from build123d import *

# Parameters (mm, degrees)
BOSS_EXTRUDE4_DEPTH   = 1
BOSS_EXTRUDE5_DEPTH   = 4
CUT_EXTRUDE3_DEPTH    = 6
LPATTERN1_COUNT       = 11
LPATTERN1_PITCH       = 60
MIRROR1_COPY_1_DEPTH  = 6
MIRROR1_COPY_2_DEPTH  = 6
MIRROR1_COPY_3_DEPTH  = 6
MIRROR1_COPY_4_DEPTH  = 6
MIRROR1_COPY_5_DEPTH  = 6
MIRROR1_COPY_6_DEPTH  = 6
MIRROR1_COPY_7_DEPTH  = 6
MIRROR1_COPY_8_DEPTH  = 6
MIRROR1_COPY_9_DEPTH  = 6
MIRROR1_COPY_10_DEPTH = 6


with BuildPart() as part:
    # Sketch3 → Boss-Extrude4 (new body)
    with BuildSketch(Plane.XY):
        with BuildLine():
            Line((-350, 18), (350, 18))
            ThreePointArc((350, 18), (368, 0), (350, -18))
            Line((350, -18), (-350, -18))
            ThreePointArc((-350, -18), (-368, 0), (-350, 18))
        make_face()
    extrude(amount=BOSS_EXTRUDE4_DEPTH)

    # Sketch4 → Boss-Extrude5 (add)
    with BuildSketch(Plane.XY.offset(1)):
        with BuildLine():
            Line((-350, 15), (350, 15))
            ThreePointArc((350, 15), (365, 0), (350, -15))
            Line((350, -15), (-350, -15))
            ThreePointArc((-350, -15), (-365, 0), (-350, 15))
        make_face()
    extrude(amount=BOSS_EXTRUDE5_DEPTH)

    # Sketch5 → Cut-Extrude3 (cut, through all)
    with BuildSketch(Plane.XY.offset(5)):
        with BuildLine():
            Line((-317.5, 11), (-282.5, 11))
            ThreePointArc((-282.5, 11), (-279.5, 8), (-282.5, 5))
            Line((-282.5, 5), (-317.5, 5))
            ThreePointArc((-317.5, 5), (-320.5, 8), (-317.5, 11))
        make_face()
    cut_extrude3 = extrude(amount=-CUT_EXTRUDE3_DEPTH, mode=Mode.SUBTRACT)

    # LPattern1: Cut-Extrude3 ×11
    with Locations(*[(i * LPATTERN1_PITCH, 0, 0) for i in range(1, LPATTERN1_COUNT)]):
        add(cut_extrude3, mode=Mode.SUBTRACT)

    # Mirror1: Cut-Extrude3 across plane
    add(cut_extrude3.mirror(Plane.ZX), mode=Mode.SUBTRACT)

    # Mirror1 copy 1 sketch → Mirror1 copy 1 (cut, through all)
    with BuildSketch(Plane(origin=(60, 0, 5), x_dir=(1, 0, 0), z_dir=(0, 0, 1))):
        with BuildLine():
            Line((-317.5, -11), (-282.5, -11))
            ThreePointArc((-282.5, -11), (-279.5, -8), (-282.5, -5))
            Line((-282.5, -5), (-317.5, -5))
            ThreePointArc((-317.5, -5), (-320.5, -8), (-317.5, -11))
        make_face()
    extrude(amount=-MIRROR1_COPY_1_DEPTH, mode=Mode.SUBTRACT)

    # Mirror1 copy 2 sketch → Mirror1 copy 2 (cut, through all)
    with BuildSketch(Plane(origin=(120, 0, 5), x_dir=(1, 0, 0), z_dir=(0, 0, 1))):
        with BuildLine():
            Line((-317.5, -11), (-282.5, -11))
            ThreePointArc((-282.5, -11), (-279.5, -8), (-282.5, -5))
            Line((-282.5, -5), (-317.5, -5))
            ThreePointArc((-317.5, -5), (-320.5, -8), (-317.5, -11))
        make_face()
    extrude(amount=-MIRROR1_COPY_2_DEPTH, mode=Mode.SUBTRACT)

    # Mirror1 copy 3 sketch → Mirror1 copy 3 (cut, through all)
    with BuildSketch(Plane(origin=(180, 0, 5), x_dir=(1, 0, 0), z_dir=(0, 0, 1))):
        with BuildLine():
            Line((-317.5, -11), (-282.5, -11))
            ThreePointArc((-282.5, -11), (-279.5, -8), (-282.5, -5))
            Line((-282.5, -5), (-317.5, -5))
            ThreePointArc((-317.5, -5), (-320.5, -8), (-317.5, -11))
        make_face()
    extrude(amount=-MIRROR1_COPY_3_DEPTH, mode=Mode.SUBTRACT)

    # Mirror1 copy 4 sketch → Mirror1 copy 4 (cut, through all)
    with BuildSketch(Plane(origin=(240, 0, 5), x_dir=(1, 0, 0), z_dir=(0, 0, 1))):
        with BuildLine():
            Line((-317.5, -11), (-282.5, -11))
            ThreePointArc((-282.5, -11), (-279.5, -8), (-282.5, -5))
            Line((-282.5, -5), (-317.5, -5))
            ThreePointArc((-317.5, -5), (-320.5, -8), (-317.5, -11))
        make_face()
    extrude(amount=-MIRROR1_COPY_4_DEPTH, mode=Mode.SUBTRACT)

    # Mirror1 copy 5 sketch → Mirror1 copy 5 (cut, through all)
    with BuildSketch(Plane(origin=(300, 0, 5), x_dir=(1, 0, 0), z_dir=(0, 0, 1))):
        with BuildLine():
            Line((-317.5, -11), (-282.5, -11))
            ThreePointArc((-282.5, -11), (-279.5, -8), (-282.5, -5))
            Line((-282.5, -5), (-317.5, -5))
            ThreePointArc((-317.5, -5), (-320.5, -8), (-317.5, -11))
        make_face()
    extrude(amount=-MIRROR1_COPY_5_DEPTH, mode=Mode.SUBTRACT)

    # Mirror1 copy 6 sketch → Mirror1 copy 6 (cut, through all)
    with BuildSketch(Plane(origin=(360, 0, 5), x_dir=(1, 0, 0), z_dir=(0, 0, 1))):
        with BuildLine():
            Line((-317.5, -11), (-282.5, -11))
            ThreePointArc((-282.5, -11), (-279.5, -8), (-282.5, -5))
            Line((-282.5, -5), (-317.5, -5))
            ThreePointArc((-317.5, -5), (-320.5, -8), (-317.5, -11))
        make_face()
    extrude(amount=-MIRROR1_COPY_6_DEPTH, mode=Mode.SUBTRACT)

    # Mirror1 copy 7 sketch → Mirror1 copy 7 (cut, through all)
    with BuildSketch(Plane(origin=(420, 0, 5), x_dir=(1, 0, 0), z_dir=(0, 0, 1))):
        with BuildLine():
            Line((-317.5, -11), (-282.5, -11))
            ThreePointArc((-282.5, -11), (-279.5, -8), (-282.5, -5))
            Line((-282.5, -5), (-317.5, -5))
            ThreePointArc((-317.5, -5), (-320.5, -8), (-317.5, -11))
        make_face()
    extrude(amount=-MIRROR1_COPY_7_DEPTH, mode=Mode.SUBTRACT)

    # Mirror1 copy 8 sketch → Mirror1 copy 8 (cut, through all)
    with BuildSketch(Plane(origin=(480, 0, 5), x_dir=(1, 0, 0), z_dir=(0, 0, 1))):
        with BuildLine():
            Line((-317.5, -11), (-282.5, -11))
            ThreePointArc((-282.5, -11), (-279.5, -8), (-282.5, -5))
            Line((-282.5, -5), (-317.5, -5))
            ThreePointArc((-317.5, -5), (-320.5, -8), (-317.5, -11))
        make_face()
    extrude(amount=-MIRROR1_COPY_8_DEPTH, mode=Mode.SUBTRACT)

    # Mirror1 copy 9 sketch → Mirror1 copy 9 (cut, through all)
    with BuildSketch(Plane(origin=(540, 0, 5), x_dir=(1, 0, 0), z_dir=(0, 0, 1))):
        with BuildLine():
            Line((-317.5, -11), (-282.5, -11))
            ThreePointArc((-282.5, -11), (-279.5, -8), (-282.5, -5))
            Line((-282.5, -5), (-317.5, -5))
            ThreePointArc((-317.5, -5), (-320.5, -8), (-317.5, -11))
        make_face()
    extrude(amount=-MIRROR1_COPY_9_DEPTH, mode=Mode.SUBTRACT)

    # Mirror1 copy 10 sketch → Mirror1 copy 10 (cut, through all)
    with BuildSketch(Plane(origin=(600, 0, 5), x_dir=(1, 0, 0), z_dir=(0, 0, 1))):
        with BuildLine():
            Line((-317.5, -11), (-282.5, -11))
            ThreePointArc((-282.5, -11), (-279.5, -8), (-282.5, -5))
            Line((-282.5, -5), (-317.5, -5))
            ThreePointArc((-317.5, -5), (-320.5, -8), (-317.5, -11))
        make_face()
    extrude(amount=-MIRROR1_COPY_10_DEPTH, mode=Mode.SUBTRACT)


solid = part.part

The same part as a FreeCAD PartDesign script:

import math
import FreeCAD as App
import Part
import Sketcher
from FreeCAD import Vector

doc = App.newDocument("Part")
params = doc.addObject("Spreadsheet::Sheet", "Params")
for row, (alias, value) in enumerate([
    ("sketch1_radius", "18 mm"),
    ("sketch1_width", "700 mm"),
    ("pad1_length", "1 mm"),
    ("sketch2_radius", "15 mm"),
    ("sketch2_width", "700 mm"),
    ("pad2_length", "4 mm"),
    ("sketch3_radius", "3 mm"),
    ("sketch3_width", "35 mm"),
    ("linearpattern_pitch", "60 mm"),
    ("sketch4_radius", "3 mm"),
    ("sketch4_width", "35 mm"),
    ("sketch5_radius", "3 mm"),
    ("sketch5_width", "35 mm"),
    ("sketch6_radius", "3 mm"),
    ("sketch6_width", "35 mm"),
    ("sketch7_radius", "3 mm"),
    ("sketch7_width", "35 mm"),
    ("sketch8_radius", "3 mm"),
    ("sketch8_width", "35 mm"),
    ("sketch9_radius", "3 mm"),
    ("sketch9_width", "35 mm"),
    ("sketch10_radius", "3 mm"),
    ("sketch10_width", "35 mm"),
    ("sketch11_radius", "3 mm"),
    ("sketch11_width", "35 mm"),
    ("sketch12_radius", "3 mm"),
    ("sketch12_width", "35 mm"),
    ("sketch13_radius", "3 mm"),
    ("sketch13_width", "35 mm"),
], start=1):
    params.set(f"A{row}", alias)
    params.set(f"B{row}", "=" + value)
    params.setAlias(f"B{row}", alias)

body = doc.addObject("PartDesign::Body", "Body")

sketch1 = body.newObject("Sketcher::SketchObject", "Sketch")
sketch1.AttachmentSupport = (doc.getObject("XY_Plane"), [""])
sketch1.MapMode = "FlatFace"
sketch1.addGeometry(Part.LineSegment(Vector(350, 18, 0), Vector(-350, 18, 0)), False)
sketch1.addGeometry(Part.ArcOfCircle(Part.Circle(Vector(-350, 0, 0), Vector(0, 0, 1), 18), math.radians(90), math.radians(270)), False)
sketch1.addGeometry(Part.LineSegment(Vector(-350, -18, 0), Vector(350, -18, 0)), False)
sketch1.addGeometry(Part.ArcOfCircle(Part.Circle(Vector(350, 0, 0), Vector(0, 0, 1), 18), math.radians(-90), math.radians(90)), False)
sketch1.addConstraint(Sketcher.Constraint("Tangent", 0, 2, 1, 1))
sketch1.addConstraint(Sketcher.Constraint("Tangent", 1, 2, 2, 1))
sketch1.addConstraint(Sketcher.Constraint("Tangent", 2, 2, 3, 1))
sketch1.addConstraint(Sketcher.Constraint("Tangent", 3, 2, 0, 1))
sketch1.addConstraint(Sketcher.Constraint("Horizontal", 0))
sketch1.addConstraint(Sketcher.Constraint("Horizontal", 2))
sketch1.addConstraint(Sketcher.Constraint("Symmetric", 1, 3, 3, 3, -1, 1))
sketch1.addConstraint(Sketcher.Constraint("Radius", 1, 18.0))
sketch1.addConstraint(Sketcher.Constraint("DistanceX", 0, 2, 0, 1, 700.0))
sketch1.setExpression("Constraints[7]", "Params.sketch1_radius")
sketch1.setExpression("Constraints[8]", "Params.sketch1_width")
pad1 = body.newObject("PartDesign::Pad", "Pad")
pad1.Profile = sketch1
pad1.setExpression("Length", "Params.pad1_length")

sketch2 = body.newObject("Sketcher::SketchObject", "Sketch001")
sketch2.AttachmentSupport = (doc.getObject("XY_Plane"), [""])
sketch2.MapMode = "FlatFace"
sketch2.AttachmentOffset = App.Placement(Vector(0, 0, 1), App.Rotation())
sketch2.addGeometry(Part.LineSegment(Vector(350, 15, 0), Vector(-350, 15, 0)), False)
sketch2.addGeometry(Part.ArcOfCircle(Part.Circle(Vector(-350, 0, 0), Vector(0, 0, 1), 15), math.radians(90), math.radians(270)), False)
sketch2.addGeometry(Part.LineSegment(Vector(-350, -15, 0), Vector(350, -15, 0)), False)
sketch2.addGeometry(Part.ArcOfCircle(Part.Circle(Vector(350, 0, 0), Vector(0, 0, 1), 15), math.radians(-90), math.radians(90)), False)
sketch2.addConstraint(Sketcher.Constraint("Tangent", 0, 2, 1, 1))
sketch2.addConstraint(Sketcher.Constraint("Tangent", 1, 2, 2, 1))
sketch2.addConstraint(Sketcher.Constraint("Tangent", 2, 2, 3, 1))
sketch2.addConstraint(Sketcher.Constraint("Tangent", 3, 2, 0, 1))
sketch2.addConstraint(Sketcher.Constraint("Horizontal", 0))
sketch2.addConstraint(Sketcher.Constraint("Horizontal", 2))
sketch2.addConstraint(Sketcher.Constraint("Symmetric", 1, 3, 3, 3, -1, 1))
sketch2.addConstraint(Sketcher.Constraint("Radius", 1, 15.0))
sketch2.addConstraint(Sketcher.Constraint("DistanceX", 0, 2, 0, 1, 700.0))
sketch2.setExpression("Constraints[7]", "Params.sketch2_radius")
sketch2.setExpression("Constraints[8]", "Params.sketch2_width")
pad2 = body.newObject("PartDesign::Pad", "Pad001")
pad2.Profile = sketch2
pad2.setExpression("Length", "Params.pad2_length")

sketch3 = body.newObject("Sketcher::SketchObject", "Sketch002")
sketch3.AttachmentSupport = (doc.getObject("XY_Plane"), [""])
sketch3.MapMode = "FlatFace"
sketch3.AttachmentOffset = App.Placement(Vector(0, 0, 5), App.Rotation())
sketch3.addGeometry(Part.LineSegment(Vector(-282.5, 11, 0), Vector(-317.5, 11, 0)), False)
sketch3.addGeometry(Part.ArcOfCircle(Part.Circle(Vector(-317.5, 8, 0), Vector(0, 0, 1), 3), math.radians(90), math.radians(270)), False)
sketch3.addGeometry(Part.LineSegment(Vector(-317.5, 5, 0), Vector(-282.5, 5, 0)), False)
sketch3.addGeometry(Part.ArcOfCircle(Part.Circle(Vector(-282.5, 8, 0), Vector(0, 0, 1), 3), math.radians(-90), math.radians(90)), False)
sketch3.addConstraint(Sketcher.Constraint("Tangent", 0, 2, 1, 1))
sketch3.addConstraint(Sketcher.Constraint("Tangent", 1, 2, 2, 1))
sketch3.addConstraint(Sketcher.Constraint("Tangent", 2, 2, 3, 1))
sketch3.addConstraint(Sketcher.Constraint("Tangent", 3, 2, 0, 1))
sketch3.addConstraint(Sketcher.Constraint("Horizontal", 0))
sketch3.addConstraint(Sketcher.Constraint("Horizontal", 2))
sketch3.addConstraint(Sketcher.Constraint("Radius", 1, 3.0))
sketch3.addConstraint(Sketcher.Constraint("DistanceX", 0, 2, 0, 1, 35.0))
sketch3.addConstraint(Sketcher.Constraint("DistanceY", -1, 1, 1, 3, 8.0))
sketch3.addConstraint(Sketcher.Constraint("DistanceX", 1, 3, -1, 1, 317.5))
sketch3.setExpression("Constraints[6]", "Params.sketch3_radius")
sketch3.setExpression("Constraints[7]", "Params.sketch3_width")
pocket1 = body.newObject("PartDesign::Pocket", "Pocket")
pocket1.Profile = sketch3
pocket1.Type = "ThroughAll"
doc.recompute()

linearpattern = body.newObject("PartDesign::LinearPattern", "LinearPattern")
linearpattern.Originals = [pocket1]
linearpattern.Direction = (doc.getObject("X_Axis"), [""])
linearpattern.Mode = "offset"
linearpattern.setExpression("Offset", "Params.linearpattern_pitch")
linearpattern.Occurrences = 11
body.Tip = linearpattern
doc.recompute()

mirrored = body.newObject("PartDesign::Mirrored", "Mirrored")
mirrored.Originals = [pocket1]
mirrored.MirrorPlane = (doc.getObject("XZ_Plane"), [""])
body.Tip = mirrored

sketch4 = body.newObject("Sketcher::SketchObject", "Sketch003")
sketch4.AttachmentSupport = (doc.getObject("XY_Plane"), [""])
sketch4.MapMode = "FlatFace"
sketch4.AttachmentOffset = App.Placement(Vector(0, 0, 5), App.Rotation())
sketch4.addGeometry(Part.LineSegment(Vector(-257.5, -11, 0), Vector(-222.5, -11, 0)), False)
sketch4.addGeometry(Part.ArcOfCircle(Part.Circle(Vector(-222.5, -8, 0), Vector(0, 0, 1), 3), math.radians(-90), math.radians(90)), False)
sketch4.addGeometry(Part.LineSegment(Vector(-222.5, -5, 0), Vector(-257.5, -5, 0)), False)
sketch4.addGeometry(Part.ArcOfCircle(Part.Circle(Vector(-257.5, -8, 0), Vector(0, 0, 1), 3), math.radians(90), math.radians(270)), False)
sketch4.addConstraint(Sketcher.Constraint("Tangent", 0, 2, 1, 1))
sketch4.addConstraint(Sketcher.Constraint("Tangent", 1, 2, 2, 1))
sketch4.addConstraint(Sketcher.Constraint("Tangent", 2, 2, 3, 1))
sketch4.addConstraint(Sketcher.Constraint("Tangent", 3, 2, 0, 1))
sketch4.addConstraint(Sketcher.Constraint("Horizontal", 0))
sketch4.addConstraint(Sketcher.Constraint("Horizontal", 2))
sketch4.addConstraint(Sketcher.Constraint("Radius", 1, 3.0))
sketch4.addConstraint(Sketcher.Constraint("DistanceX", 0, 1, 0, 2, 35.0))
sketch4.addConstraint(Sketcher.Constraint("DistanceY", 1, 3, -1, 1, 8.0))
sketch4.addConstraint(Sketcher.Constraint("DistanceX", 1, 3, -1, 1, 222.5))
sketch4.setExpression("Constraints[6]", "Params.sketch4_radius")
sketch4.setExpression("Constraints[7]", "Params.sketch4_width")
pocket2 = body.newObject("PartDesign::Pocket", "Pocket001")
pocket2.Profile = sketch4
pocket2.Type = "ThroughAll"

sketch5 = body.newObject("Sketcher::SketchObject", "Sketch004")
sketch5.AttachmentSupport = (doc.getObject("XY_Plane"), [""])
sketch5.MapMode = "FlatFace"
sketch5.AttachmentOffset = App.Placement(Vector(0, 0, 5), App.Rotation())
sketch5.addGeometry(Part.LineSegment(Vector(-197.5, -11, 0), Vector(-162.5, -11, 0)), False)
sketch5.addGeometry(Part.ArcOfCircle(Part.Circle(Vector(-162.5, -8, 0), Vector(0, 0, 1), 3), math.radians(-90), math.radians(90)), False)
sketch5.addGeometry(Part.LineSegment(Vector(-162.5, -5, 0), Vector(-197.5, -5, 0)), False)
sketch5.addGeometry(Part.ArcOfCircle(Part.Circle(Vector(-197.5, -8, 0), Vector(0, 0, 1), 3), math.radians(90), math.radians(270)), False)
sketch5.addConstraint(Sketcher.Constraint("Tangent", 0, 2, 1, 1))
sketch5.addConstraint(Sketcher.Constraint("Tangent", 1, 2, 2, 1))
sketch5.addConstraint(Sketcher.Constraint("Tangent", 2, 2, 3, 1))
sketch5.addConstraint(Sketcher.Constraint("Tangent", 3, 2, 0, 1))
sketch5.addConstraint(Sketcher.Constraint("Horizontal", 0))
sketch5.addConstraint(Sketcher.Constraint("Horizontal", 2))
sketch5.addConstraint(Sketcher.Constraint("Radius", 1, 3.0))
sketch5.addConstraint(Sketcher.Constraint("DistanceX", 0, 1, 0, 2, 35.0))
sketch5.addConstraint(Sketcher.Constraint("DistanceY", 1, 3, -1, 1, 8.0))
sketch5.addConstraint(Sketcher.Constraint("DistanceX", 1, 3, -1, 1, 162.5))
sketch5.setExpression("Constraints[6]", "Params.sketch5_radius")
sketch5.setExpression("Constraints[7]", "Params.sketch5_width")
pocket3 = body.newObject("PartDesign::Pocket", "Pocket002")
pocket3.Profile = sketch5
pocket3.Type = "ThroughAll"

sketch6 = body.newObject("Sketcher::SketchObject", "Sketch005")
sketch6.AttachmentSupport = (doc.getObject("XY_Plane"), [""])
sketch6.MapMode = "FlatFace"
sketch6.AttachmentOffset = App.Placement(Vector(0, 0, 5), App.Rotation())
sketch6.addGeometry(Part.LineSegment(Vector(-137.5, -11, 0), Vector(-102.5, -11, 0)), False)
sketch6.addGeometry(Part.ArcOfCircle(Part.Circle(Vector(-102.5, -8, 0), Vector(0, 0, 1), 3), math.radians(-90), math.radians(90)), False)
sketch6.addGeometry(Part.LineSegment(Vector(-102.5, -5, 0), Vector(-137.5, -5, 0)), False)
sketch6.addGeometry(Part.ArcOfCircle(Part.Circle(Vector(-137.5, -8, 0), Vector(0, 0, 1), 3), math.radians(90), math.radians(270)), False)
sketch6.addConstraint(Sketcher.Constraint("Tangent", 0, 2, 1, 1))
sketch6.addConstraint(Sketcher.Constraint("Tangent", 1, 2, 2, 1))
sketch6.addConstraint(Sketcher.Constraint("Tangent", 2, 2, 3, 1))
sketch6.addConstraint(Sketcher.Constraint("Tangent", 3, 2, 0, 1))
sketch6.addConstraint(Sketcher.Constraint("Horizontal", 0))
sketch6.addConstraint(Sketcher.Constraint("Horizontal", 2))
sketch6.addConstraint(Sketcher.Constraint("Radius", 1, 3.0))
sketch6.addConstraint(Sketcher.Constraint("DistanceX", 0, 1, 0, 2, 35.0))
sketch6.addConstraint(Sketcher.Constraint("DistanceY", 1, 3, -1, 1, 8.0))
sketch6.addConstraint(Sketcher.Constraint("DistanceX", 1, 3, -1, 1, 102.5))
sketch6.setExpression("Constraints[6]", "Params.sketch6_radius")
sketch6.setExpression("Constraints[7]", "Params.sketch6_width")
pocket4 = body.newObject("PartDesign::Pocket", "Pocket003")
pocket4.Profile = sketch6
pocket4.Type = "ThroughAll"

sketch7 = body.newObject("Sketcher::SketchObject", "Sketch006")
sketch7.AttachmentSupport = (doc.getObject("XY_Plane"), [""])
sketch7.MapMode = "FlatFace"
sketch7.AttachmentOffset = App.Placement(Vector(0, 0, 5), App.Rotation())
sketch7.addGeometry(Part.LineSegment(Vector(-77.5, -11, 0), Vector(-42.5, -11, 0)), False)
sketch7.addGeometry(Part.ArcOfCircle(Part.Circle(Vector(-42.5, -8, 0), Vector(0, 0, 1), 3), math.radians(-90), math.radians(90)), False)
sketch7.addGeometry(Part.LineSegment(Vector(-42.5, -5, 0), Vector(-77.5, -5, 0)), False)
sketch7.addGeometry(Part.ArcOfCircle(Part.Circle(Vector(-77.5, -8, 0), Vector(0, 0, 1), 3), math.radians(90), math.radians(270)), False)
sketch7.addConstraint(Sketcher.Constraint("Tangent", 0, 2, 1, 1))
sketch7.addConstraint(Sketcher.Constraint("Tangent", 1, 2, 2, 1))
sketch7.addConstraint(Sketcher.Constraint("Tangent", 2, 2, 3, 1))
sketch7.addConstraint(Sketcher.Constraint("Tangent", 3, 2, 0, 1))
sketch7.addConstraint(Sketcher.Constraint("Horizontal", 0))
sketch7.addConstraint(Sketcher.Constraint("Horizontal", 2))
sketch7.addConstraint(Sketcher.Constraint("Radius", 1, 3.0))
sketch7.addConstraint(Sketcher.Constraint("DistanceX", 0, 1, 0, 2, 35.0))
sketch7.addConstraint(Sketcher.Constraint("DistanceY", 1, 3, -1, 1, 8.0))
sketch7.addConstraint(Sketcher.Constraint("DistanceX", 1, 3, -1, 1, 42.5))
sketch7.setExpression("Constraints[6]", "Params.sketch7_radius")
sketch7.setExpression("Constraints[7]", "Params.sketch7_width")
pocket5 = body.newObject("PartDesign::Pocket", "Pocket004")
pocket5.Profile = sketch7
pocket5.Type = "ThroughAll"

sketch8 = body.newObject("Sketcher::SketchObject", "Sketch007")
sketch8.AttachmentSupport = (doc.getObject("XY_Plane"), [""])
sketch8.MapMode = "FlatFace"
sketch8.AttachmentOffset = App.Placement(Vector(0, 0, 5), App.Rotation())
sketch8.addGeometry(Part.LineSegment(Vector(-17.5, -11, 0), Vector(17.5, -11, 0)), False)
sketch8.addGeometry(Part.ArcOfCircle(Part.Circle(Vector(17.5, -8, 0), Vector(0, 0, 1), 3), math.radians(-90), math.radians(90)), False)
sketch8.addGeometry(Part.LineSegment(Vector(17.5, -5, 0), Vector(-17.5, -5, 0)), False)
sketch8.addGeometry(Part.ArcOfCircle(Part.Circle(Vector(-17.5, -8, 0), Vector(0, 0, 1), 3), math.radians(90), math.radians(270)), False)
sketch8.addConstraint(Sketcher.Constraint("Tangent", 0, 2, 1, 1))
sketch8.addConstraint(Sketcher.Constraint("Tangent", 1, 2, 2, 1))
sketch8.addConstraint(Sketcher.Constraint("Tangent", 2, 2, 3, 1))
sketch8.addConstraint(Sketcher.Constraint("Tangent", 3, 2, 0, 1))
sketch8.addConstraint(Sketcher.Constraint("Horizontal", 0))
sketch8.addConstraint(Sketcher.Constraint("Horizontal", 2))
sketch8.addConstraint(Sketcher.Constraint("Radius", 1, 3.0))
sketch8.addConstraint(Sketcher.Constraint("DistanceX", 0, 1, 0, 2, 35.0))
sketch8.addConstraint(Sketcher.Constraint("DistanceY", 1, 3, -1, 1, 8.0))
sketch8.addConstraint(Sketcher.Constraint("DistanceX", -1, 1, 1, 3, 17.5))
sketch8.setExpression("Constraints[6]", "Params.sketch8_radius")
sketch8.setExpression("Constraints[7]", "Params.sketch8_width")
pocket6 = body.newObject("PartDesign::Pocket", "Pocket005")
pocket6.Profile = sketch8
pocket6.Type = "ThroughAll"

sketch9 = body.newObject("Sketcher::SketchObject", "Sketch008")
sketch9.AttachmentSupport = (doc.getObject("XY_Plane"), [""])
sketch9.MapMode = "FlatFace"
sketch9.AttachmentOffset = App.Placement(Vector(0, 0, 5), App.Rotation())
sketch9.addGeometry(Part.LineSegment(Vector(42.5, -11, 0), Vector(77.5, -11, 0)), False)
sketch9.addGeometry(Part.ArcOfCircle(Part.Circle(Vector(77.5, -8, 0), Vector(0, 0, 1), 3), math.radians(-90), math.radians(90)), False)
sketch9.addGeometry(Part.LineSegment(Vector(77.5, -5, 0), Vector(42.5, -5, 0)), False)
sketch9.addGeometry(Part.ArcOfCircle(Part.Circle(Vector(42.5, -8, 0), Vector(0, 0, 1), 3), math.radians(90), math.radians(270)), False)
sketch9.addConstraint(Sketcher.Constraint("Tangent", 0, 2, 1, 1))
sketch9.addConstraint(Sketcher.Constraint("Tangent", 1, 2, 2, 1))
sketch9.addConstraint(Sketcher.Constraint("Tangent", 2, 2, 3, 1))
sketch9.addConstraint(Sketcher.Constraint("Tangent", 3, 2, 0, 1))
sketch9.addConstraint(Sketcher.Constraint("Horizontal", 0))
sketch9.addConstraint(Sketcher.Constraint("Horizontal", 2))
sketch9.addConstraint(Sketcher.Constraint("Radius", 1, 3.0))
sketch9.addConstraint(Sketcher.Constraint("DistanceX", 0, 1, 0, 2, 35.0))
sketch9.addConstraint(Sketcher.Constraint("DistanceY", 1, 3, -1, 1, 8.0))
sketch9.addConstraint(Sketcher.Constraint("DistanceX", -1, 1, 1, 3, 77.5))
sketch9.setExpression("Constraints[6]", "Params.sketch9_radius")
sketch9.setExpression("Constraints[7]", "Params.sketch9_width")
pocket7 = body.newObject("PartDesign::Pocket", "Pocket006")
pocket7.Profile = sketch9
pocket7.Type = "ThroughAll"

sketch10 = body.newObject("Sketcher::SketchObject", "Sketch009")
sketch10.AttachmentSupport = (doc.getObject("XY_Plane"), [""])
sketch10.MapMode = "FlatFace"
sketch10.AttachmentOffset = App.Placement(Vector(0, 0, 5), App.Rotation())
sketch10.addGeometry(Part.LineSegment(Vector(102.5, -11, 0), Vector(137.5, -11, 0)), False)
sketch10.addGeometry(Part.ArcOfCircle(Part.Circle(Vector(137.5, -8, 0), Vector(0, 0, 1), 3), math.radians(-90), math.radians(90)), False)
sketch10.addGeometry(Part.LineSegment(Vector(137.5, -5, 0), Vector(102.5, -5, 0)), False)
sketch10.addGeometry(Part.ArcOfCircle(Part.Circle(Vector(102.5, -8, 0), Vector(0, 0, 1), 3), math.radians(90), math.radians(270)), False)
sketch10.addConstraint(Sketcher.Constraint("Tangent", 0, 2, 1, 1))
sketch10.addConstraint(Sketcher.Constraint("Tangent", 1, 2, 2, 1))
sketch10.addConstraint(Sketcher.Constraint("Tangent", 2, 2, 3, 1))
sketch10.addConstraint(Sketcher.Constraint("Tangent", 3, 2, 0, 1))
sketch10.addConstraint(Sketcher.Constraint("Horizontal", 0))
sketch10.addConstraint(Sketcher.Constraint("Horizontal", 2))
sketch10.addConstraint(Sketcher.Constraint("Radius", 1, 3.0))
sketch10.addConstraint(Sketcher.Constraint("DistanceX", 0, 1, 0, 2, 35.0))
sketch10.addConstraint(Sketcher.Constraint("DistanceY", 1, 3, -1, 1, 8.0))
sketch10.addConstraint(Sketcher.Constraint("DistanceX", -1, 1, 1, 3, 137.5))
sketch10.setExpression("Constraints[6]", "Params.sketch10_radius")
sketch10.setExpression("Constraints[7]", "Params.sketch10_width")
pocket8 = body.newObject("PartDesign::Pocket", "Pocket007")
pocket8.Profile = sketch10
pocket8.Type = "ThroughAll"

sketch11 = body.newObject("Sketcher::SketchObject", "Sketch010")
sketch11.AttachmentSupport = (doc.getObject("XY_Plane"), [""])
sketch11.MapMode = "FlatFace"
sketch11.AttachmentOffset = App.Placement(Vector(0, 0, 5), App.Rotation())
sketch11.addGeometry(Part.LineSegment(Vector(162.5, -11, 0), Vector(197.5, -11, 0)), False)
sketch11.addGeometry(Part.ArcOfCircle(Part.Circle(Vector(197.5, -8, 0), Vector(0, 0, 1), 3), math.radians(-90), math.radians(90)), False)
sketch11.addGeometry(Part.LineSegment(Vector(197.5, -5, 0), Vector(162.5, -5, 0)), False)
sketch11.addGeometry(Part.ArcOfCircle(Part.Circle(Vector(162.5, -8, 0), Vector(0, 0, 1), 3), math.radians(90), math.radians(270)), False)
sketch11.addConstraint(Sketcher.Constraint("Tangent", 0, 2, 1, 1))
sketch11.addConstraint(Sketcher.Constraint("Tangent", 1, 2, 2, 1))
sketch11.addConstraint(Sketcher.Constraint("Tangent", 2, 2, 3, 1))
sketch11.addConstraint(Sketcher.Constraint("Tangent", 3, 2, 0, 1))
sketch11.addConstraint(Sketcher.Constraint("Horizontal", 0))
sketch11.addConstraint(Sketcher.Constraint("Horizontal", 2))
sketch11.addConstraint(Sketcher.Constraint("Radius", 1, 3.0))
sketch11.addConstraint(Sketcher.Constraint("DistanceX", 0, 1, 0, 2, 35.0))
sketch11.addConstraint(Sketcher.Constraint("DistanceY", 1, 3, -1, 1, 8.0))
sketch11.addConstraint(Sketcher.Constraint("DistanceX", -1, 1, 1, 3, 197.5))
sketch11.setExpression("Constraints[6]", "Params.sketch11_radius")
sketch11.setExpression("Constraints[7]", "Params.sketch11_width")
pocket9 = body.newObject("PartDesign::Pocket", "Pocket008")
pocket9.Profile = sketch11
pocket9.Type = "ThroughAll"

sketch12 = body.newObject("Sketcher::SketchObject", "Sketch011")
sketch12.AttachmentSupport = (doc.getObject("XY_Plane"), [""])
sketch12.MapMode = "FlatFace"
sketch12.AttachmentOffset = App.Placement(Vector(0, 0, 5), App.Rotation())
sketch12.addGeometry(Part.LineSegment(Vector(222.5, -11, 0), Vector(257.5, -11, 0)), False)
sketch12.addGeometry(Part.ArcOfCircle(Part.Circle(Vector(257.5, -8, 0), Vector(0, 0, 1), 3), math.radians(-90), math.radians(90)), False)
sketch12.addGeometry(Part.LineSegment(Vector(257.5, -5, 0), Vector(222.5, -5, 0)), False)
sketch12.addGeometry(Part.ArcOfCircle(Part.Circle(Vector(222.5, -8, 0), Vector(0, 0, 1), 3), math.radians(90), math.radians(270)), False)
sketch12.addConstraint(Sketcher.Constraint("Tangent", 0, 2, 1, 1))
sketch12.addConstraint(Sketcher.Constraint("Tangent", 1, 2, 2, 1))
sketch12.addConstraint(Sketcher.Constraint("Tangent", 2, 2, 3, 1))
sketch12.addConstraint(Sketcher.Constraint("Tangent", 3, 2, 0, 1))
sketch12.addConstraint(Sketcher.Constraint("Horizontal", 0))
sketch12.addConstraint(Sketcher.Constraint("Horizontal", 2))
sketch12.addConstraint(Sketcher.Constraint("Radius", 1, 3.0))
sketch12.addConstraint(Sketcher.Constraint("DistanceX", 0, 1, 0, 2, 35.0))
sketch12.addConstraint(Sketcher.Constraint("DistanceY", 1, 3, -1, 1, 8.0))
sketch12.addConstraint(Sketcher.Constraint("DistanceX", -1, 1, 1, 3, 257.5))
sketch12.setExpression("Constraints[6]", "Params.sketch12_radius")
sketch12.setExpression("Constraints[7]", "Params.sketch12_width")
pocket10 = body.newObject("PartDesign::Pocket", "Pocket009")
pocket10.Profile = sketch12
pocket10.Type = "ThroughAll"

sketch13 = body.newObject("Sketcher::SketchObject", "Sketch012")
sketch13.AttachmentSupport = (doc.getObject("XY_Plane"), [""])
sketch13.MapMode = "FlatFace"
sketch13.AttachmentOffset = App.Placement(Vector(0, 0, 5), App.Rotation())
sketch13.addGeometry(Part.LineSegment(Vector(282.5, -11, 0), Vector(317.5, -11, 0)), False)
sketch13.addGeometry(Part.ArcOfCircle(Part.Circle(Vector(317.5, -8, 0), Vector(0, 0, 1), 3), math.radians(-90), math.radians(90)), False)
sketch13.addGeometry(Part.LineSegment(Vector(317.5, -5, 0), Vector(282.5, -5, 0)), False)
sketch13.addGeometry(Part.ArcOfCircle(Part.Circle(Vector(282.5, -8, 0), Vector(0, 0, 1), 3), math.radians(90), math.radians(270)), False)
sketch13.addConstraint(Sketcher.Constraint("Tangent", 0, 2, 1, 1))
sketch13.addConstraint(Sketcher.Constraint("Tangent", 1, 2, 2, 1))
sketch13.addConstraint(Sketcher.Constraint("Tangent", 2, 2, 3, 1))
sketch13.addConstraint(Sketcher.Constraint("Tangent", 3, 2, 0, 1))
sketch13.addConstraint(Sketcher.Constraint("Horizontal", 0))
sketch13.addConstraint(Sketcher.Constraint("Horizontal", 2))
sketch13.addConstraint(Sketcher.Constraint("Radius", 1, 3.0))
sketch13.addConstraint(Sketcher.Constraint("DistanceX", 0, 1, 0, 2, 35.0))
sketch13.addConstraint(Sketcher.Constraint("DistanceY", 1, 3, -1, 1, 8.0))
sketch13.addConstraint(Sketcher.Constraint("DistanceX", -1, 1, 1, 3, 317.5))
sketch13.setExpression("Constraints[6]", "Params.sketch13_radius")
sketch13.setExpression("Constraints[7]", "Params.sketch13_width")
pocket11 = body.newObject("PartDesign::Pocket", "Pocket010")
pocket11.Profile = sketch13
pocket11.Type = "ThroughAll"

doc.recompute()
